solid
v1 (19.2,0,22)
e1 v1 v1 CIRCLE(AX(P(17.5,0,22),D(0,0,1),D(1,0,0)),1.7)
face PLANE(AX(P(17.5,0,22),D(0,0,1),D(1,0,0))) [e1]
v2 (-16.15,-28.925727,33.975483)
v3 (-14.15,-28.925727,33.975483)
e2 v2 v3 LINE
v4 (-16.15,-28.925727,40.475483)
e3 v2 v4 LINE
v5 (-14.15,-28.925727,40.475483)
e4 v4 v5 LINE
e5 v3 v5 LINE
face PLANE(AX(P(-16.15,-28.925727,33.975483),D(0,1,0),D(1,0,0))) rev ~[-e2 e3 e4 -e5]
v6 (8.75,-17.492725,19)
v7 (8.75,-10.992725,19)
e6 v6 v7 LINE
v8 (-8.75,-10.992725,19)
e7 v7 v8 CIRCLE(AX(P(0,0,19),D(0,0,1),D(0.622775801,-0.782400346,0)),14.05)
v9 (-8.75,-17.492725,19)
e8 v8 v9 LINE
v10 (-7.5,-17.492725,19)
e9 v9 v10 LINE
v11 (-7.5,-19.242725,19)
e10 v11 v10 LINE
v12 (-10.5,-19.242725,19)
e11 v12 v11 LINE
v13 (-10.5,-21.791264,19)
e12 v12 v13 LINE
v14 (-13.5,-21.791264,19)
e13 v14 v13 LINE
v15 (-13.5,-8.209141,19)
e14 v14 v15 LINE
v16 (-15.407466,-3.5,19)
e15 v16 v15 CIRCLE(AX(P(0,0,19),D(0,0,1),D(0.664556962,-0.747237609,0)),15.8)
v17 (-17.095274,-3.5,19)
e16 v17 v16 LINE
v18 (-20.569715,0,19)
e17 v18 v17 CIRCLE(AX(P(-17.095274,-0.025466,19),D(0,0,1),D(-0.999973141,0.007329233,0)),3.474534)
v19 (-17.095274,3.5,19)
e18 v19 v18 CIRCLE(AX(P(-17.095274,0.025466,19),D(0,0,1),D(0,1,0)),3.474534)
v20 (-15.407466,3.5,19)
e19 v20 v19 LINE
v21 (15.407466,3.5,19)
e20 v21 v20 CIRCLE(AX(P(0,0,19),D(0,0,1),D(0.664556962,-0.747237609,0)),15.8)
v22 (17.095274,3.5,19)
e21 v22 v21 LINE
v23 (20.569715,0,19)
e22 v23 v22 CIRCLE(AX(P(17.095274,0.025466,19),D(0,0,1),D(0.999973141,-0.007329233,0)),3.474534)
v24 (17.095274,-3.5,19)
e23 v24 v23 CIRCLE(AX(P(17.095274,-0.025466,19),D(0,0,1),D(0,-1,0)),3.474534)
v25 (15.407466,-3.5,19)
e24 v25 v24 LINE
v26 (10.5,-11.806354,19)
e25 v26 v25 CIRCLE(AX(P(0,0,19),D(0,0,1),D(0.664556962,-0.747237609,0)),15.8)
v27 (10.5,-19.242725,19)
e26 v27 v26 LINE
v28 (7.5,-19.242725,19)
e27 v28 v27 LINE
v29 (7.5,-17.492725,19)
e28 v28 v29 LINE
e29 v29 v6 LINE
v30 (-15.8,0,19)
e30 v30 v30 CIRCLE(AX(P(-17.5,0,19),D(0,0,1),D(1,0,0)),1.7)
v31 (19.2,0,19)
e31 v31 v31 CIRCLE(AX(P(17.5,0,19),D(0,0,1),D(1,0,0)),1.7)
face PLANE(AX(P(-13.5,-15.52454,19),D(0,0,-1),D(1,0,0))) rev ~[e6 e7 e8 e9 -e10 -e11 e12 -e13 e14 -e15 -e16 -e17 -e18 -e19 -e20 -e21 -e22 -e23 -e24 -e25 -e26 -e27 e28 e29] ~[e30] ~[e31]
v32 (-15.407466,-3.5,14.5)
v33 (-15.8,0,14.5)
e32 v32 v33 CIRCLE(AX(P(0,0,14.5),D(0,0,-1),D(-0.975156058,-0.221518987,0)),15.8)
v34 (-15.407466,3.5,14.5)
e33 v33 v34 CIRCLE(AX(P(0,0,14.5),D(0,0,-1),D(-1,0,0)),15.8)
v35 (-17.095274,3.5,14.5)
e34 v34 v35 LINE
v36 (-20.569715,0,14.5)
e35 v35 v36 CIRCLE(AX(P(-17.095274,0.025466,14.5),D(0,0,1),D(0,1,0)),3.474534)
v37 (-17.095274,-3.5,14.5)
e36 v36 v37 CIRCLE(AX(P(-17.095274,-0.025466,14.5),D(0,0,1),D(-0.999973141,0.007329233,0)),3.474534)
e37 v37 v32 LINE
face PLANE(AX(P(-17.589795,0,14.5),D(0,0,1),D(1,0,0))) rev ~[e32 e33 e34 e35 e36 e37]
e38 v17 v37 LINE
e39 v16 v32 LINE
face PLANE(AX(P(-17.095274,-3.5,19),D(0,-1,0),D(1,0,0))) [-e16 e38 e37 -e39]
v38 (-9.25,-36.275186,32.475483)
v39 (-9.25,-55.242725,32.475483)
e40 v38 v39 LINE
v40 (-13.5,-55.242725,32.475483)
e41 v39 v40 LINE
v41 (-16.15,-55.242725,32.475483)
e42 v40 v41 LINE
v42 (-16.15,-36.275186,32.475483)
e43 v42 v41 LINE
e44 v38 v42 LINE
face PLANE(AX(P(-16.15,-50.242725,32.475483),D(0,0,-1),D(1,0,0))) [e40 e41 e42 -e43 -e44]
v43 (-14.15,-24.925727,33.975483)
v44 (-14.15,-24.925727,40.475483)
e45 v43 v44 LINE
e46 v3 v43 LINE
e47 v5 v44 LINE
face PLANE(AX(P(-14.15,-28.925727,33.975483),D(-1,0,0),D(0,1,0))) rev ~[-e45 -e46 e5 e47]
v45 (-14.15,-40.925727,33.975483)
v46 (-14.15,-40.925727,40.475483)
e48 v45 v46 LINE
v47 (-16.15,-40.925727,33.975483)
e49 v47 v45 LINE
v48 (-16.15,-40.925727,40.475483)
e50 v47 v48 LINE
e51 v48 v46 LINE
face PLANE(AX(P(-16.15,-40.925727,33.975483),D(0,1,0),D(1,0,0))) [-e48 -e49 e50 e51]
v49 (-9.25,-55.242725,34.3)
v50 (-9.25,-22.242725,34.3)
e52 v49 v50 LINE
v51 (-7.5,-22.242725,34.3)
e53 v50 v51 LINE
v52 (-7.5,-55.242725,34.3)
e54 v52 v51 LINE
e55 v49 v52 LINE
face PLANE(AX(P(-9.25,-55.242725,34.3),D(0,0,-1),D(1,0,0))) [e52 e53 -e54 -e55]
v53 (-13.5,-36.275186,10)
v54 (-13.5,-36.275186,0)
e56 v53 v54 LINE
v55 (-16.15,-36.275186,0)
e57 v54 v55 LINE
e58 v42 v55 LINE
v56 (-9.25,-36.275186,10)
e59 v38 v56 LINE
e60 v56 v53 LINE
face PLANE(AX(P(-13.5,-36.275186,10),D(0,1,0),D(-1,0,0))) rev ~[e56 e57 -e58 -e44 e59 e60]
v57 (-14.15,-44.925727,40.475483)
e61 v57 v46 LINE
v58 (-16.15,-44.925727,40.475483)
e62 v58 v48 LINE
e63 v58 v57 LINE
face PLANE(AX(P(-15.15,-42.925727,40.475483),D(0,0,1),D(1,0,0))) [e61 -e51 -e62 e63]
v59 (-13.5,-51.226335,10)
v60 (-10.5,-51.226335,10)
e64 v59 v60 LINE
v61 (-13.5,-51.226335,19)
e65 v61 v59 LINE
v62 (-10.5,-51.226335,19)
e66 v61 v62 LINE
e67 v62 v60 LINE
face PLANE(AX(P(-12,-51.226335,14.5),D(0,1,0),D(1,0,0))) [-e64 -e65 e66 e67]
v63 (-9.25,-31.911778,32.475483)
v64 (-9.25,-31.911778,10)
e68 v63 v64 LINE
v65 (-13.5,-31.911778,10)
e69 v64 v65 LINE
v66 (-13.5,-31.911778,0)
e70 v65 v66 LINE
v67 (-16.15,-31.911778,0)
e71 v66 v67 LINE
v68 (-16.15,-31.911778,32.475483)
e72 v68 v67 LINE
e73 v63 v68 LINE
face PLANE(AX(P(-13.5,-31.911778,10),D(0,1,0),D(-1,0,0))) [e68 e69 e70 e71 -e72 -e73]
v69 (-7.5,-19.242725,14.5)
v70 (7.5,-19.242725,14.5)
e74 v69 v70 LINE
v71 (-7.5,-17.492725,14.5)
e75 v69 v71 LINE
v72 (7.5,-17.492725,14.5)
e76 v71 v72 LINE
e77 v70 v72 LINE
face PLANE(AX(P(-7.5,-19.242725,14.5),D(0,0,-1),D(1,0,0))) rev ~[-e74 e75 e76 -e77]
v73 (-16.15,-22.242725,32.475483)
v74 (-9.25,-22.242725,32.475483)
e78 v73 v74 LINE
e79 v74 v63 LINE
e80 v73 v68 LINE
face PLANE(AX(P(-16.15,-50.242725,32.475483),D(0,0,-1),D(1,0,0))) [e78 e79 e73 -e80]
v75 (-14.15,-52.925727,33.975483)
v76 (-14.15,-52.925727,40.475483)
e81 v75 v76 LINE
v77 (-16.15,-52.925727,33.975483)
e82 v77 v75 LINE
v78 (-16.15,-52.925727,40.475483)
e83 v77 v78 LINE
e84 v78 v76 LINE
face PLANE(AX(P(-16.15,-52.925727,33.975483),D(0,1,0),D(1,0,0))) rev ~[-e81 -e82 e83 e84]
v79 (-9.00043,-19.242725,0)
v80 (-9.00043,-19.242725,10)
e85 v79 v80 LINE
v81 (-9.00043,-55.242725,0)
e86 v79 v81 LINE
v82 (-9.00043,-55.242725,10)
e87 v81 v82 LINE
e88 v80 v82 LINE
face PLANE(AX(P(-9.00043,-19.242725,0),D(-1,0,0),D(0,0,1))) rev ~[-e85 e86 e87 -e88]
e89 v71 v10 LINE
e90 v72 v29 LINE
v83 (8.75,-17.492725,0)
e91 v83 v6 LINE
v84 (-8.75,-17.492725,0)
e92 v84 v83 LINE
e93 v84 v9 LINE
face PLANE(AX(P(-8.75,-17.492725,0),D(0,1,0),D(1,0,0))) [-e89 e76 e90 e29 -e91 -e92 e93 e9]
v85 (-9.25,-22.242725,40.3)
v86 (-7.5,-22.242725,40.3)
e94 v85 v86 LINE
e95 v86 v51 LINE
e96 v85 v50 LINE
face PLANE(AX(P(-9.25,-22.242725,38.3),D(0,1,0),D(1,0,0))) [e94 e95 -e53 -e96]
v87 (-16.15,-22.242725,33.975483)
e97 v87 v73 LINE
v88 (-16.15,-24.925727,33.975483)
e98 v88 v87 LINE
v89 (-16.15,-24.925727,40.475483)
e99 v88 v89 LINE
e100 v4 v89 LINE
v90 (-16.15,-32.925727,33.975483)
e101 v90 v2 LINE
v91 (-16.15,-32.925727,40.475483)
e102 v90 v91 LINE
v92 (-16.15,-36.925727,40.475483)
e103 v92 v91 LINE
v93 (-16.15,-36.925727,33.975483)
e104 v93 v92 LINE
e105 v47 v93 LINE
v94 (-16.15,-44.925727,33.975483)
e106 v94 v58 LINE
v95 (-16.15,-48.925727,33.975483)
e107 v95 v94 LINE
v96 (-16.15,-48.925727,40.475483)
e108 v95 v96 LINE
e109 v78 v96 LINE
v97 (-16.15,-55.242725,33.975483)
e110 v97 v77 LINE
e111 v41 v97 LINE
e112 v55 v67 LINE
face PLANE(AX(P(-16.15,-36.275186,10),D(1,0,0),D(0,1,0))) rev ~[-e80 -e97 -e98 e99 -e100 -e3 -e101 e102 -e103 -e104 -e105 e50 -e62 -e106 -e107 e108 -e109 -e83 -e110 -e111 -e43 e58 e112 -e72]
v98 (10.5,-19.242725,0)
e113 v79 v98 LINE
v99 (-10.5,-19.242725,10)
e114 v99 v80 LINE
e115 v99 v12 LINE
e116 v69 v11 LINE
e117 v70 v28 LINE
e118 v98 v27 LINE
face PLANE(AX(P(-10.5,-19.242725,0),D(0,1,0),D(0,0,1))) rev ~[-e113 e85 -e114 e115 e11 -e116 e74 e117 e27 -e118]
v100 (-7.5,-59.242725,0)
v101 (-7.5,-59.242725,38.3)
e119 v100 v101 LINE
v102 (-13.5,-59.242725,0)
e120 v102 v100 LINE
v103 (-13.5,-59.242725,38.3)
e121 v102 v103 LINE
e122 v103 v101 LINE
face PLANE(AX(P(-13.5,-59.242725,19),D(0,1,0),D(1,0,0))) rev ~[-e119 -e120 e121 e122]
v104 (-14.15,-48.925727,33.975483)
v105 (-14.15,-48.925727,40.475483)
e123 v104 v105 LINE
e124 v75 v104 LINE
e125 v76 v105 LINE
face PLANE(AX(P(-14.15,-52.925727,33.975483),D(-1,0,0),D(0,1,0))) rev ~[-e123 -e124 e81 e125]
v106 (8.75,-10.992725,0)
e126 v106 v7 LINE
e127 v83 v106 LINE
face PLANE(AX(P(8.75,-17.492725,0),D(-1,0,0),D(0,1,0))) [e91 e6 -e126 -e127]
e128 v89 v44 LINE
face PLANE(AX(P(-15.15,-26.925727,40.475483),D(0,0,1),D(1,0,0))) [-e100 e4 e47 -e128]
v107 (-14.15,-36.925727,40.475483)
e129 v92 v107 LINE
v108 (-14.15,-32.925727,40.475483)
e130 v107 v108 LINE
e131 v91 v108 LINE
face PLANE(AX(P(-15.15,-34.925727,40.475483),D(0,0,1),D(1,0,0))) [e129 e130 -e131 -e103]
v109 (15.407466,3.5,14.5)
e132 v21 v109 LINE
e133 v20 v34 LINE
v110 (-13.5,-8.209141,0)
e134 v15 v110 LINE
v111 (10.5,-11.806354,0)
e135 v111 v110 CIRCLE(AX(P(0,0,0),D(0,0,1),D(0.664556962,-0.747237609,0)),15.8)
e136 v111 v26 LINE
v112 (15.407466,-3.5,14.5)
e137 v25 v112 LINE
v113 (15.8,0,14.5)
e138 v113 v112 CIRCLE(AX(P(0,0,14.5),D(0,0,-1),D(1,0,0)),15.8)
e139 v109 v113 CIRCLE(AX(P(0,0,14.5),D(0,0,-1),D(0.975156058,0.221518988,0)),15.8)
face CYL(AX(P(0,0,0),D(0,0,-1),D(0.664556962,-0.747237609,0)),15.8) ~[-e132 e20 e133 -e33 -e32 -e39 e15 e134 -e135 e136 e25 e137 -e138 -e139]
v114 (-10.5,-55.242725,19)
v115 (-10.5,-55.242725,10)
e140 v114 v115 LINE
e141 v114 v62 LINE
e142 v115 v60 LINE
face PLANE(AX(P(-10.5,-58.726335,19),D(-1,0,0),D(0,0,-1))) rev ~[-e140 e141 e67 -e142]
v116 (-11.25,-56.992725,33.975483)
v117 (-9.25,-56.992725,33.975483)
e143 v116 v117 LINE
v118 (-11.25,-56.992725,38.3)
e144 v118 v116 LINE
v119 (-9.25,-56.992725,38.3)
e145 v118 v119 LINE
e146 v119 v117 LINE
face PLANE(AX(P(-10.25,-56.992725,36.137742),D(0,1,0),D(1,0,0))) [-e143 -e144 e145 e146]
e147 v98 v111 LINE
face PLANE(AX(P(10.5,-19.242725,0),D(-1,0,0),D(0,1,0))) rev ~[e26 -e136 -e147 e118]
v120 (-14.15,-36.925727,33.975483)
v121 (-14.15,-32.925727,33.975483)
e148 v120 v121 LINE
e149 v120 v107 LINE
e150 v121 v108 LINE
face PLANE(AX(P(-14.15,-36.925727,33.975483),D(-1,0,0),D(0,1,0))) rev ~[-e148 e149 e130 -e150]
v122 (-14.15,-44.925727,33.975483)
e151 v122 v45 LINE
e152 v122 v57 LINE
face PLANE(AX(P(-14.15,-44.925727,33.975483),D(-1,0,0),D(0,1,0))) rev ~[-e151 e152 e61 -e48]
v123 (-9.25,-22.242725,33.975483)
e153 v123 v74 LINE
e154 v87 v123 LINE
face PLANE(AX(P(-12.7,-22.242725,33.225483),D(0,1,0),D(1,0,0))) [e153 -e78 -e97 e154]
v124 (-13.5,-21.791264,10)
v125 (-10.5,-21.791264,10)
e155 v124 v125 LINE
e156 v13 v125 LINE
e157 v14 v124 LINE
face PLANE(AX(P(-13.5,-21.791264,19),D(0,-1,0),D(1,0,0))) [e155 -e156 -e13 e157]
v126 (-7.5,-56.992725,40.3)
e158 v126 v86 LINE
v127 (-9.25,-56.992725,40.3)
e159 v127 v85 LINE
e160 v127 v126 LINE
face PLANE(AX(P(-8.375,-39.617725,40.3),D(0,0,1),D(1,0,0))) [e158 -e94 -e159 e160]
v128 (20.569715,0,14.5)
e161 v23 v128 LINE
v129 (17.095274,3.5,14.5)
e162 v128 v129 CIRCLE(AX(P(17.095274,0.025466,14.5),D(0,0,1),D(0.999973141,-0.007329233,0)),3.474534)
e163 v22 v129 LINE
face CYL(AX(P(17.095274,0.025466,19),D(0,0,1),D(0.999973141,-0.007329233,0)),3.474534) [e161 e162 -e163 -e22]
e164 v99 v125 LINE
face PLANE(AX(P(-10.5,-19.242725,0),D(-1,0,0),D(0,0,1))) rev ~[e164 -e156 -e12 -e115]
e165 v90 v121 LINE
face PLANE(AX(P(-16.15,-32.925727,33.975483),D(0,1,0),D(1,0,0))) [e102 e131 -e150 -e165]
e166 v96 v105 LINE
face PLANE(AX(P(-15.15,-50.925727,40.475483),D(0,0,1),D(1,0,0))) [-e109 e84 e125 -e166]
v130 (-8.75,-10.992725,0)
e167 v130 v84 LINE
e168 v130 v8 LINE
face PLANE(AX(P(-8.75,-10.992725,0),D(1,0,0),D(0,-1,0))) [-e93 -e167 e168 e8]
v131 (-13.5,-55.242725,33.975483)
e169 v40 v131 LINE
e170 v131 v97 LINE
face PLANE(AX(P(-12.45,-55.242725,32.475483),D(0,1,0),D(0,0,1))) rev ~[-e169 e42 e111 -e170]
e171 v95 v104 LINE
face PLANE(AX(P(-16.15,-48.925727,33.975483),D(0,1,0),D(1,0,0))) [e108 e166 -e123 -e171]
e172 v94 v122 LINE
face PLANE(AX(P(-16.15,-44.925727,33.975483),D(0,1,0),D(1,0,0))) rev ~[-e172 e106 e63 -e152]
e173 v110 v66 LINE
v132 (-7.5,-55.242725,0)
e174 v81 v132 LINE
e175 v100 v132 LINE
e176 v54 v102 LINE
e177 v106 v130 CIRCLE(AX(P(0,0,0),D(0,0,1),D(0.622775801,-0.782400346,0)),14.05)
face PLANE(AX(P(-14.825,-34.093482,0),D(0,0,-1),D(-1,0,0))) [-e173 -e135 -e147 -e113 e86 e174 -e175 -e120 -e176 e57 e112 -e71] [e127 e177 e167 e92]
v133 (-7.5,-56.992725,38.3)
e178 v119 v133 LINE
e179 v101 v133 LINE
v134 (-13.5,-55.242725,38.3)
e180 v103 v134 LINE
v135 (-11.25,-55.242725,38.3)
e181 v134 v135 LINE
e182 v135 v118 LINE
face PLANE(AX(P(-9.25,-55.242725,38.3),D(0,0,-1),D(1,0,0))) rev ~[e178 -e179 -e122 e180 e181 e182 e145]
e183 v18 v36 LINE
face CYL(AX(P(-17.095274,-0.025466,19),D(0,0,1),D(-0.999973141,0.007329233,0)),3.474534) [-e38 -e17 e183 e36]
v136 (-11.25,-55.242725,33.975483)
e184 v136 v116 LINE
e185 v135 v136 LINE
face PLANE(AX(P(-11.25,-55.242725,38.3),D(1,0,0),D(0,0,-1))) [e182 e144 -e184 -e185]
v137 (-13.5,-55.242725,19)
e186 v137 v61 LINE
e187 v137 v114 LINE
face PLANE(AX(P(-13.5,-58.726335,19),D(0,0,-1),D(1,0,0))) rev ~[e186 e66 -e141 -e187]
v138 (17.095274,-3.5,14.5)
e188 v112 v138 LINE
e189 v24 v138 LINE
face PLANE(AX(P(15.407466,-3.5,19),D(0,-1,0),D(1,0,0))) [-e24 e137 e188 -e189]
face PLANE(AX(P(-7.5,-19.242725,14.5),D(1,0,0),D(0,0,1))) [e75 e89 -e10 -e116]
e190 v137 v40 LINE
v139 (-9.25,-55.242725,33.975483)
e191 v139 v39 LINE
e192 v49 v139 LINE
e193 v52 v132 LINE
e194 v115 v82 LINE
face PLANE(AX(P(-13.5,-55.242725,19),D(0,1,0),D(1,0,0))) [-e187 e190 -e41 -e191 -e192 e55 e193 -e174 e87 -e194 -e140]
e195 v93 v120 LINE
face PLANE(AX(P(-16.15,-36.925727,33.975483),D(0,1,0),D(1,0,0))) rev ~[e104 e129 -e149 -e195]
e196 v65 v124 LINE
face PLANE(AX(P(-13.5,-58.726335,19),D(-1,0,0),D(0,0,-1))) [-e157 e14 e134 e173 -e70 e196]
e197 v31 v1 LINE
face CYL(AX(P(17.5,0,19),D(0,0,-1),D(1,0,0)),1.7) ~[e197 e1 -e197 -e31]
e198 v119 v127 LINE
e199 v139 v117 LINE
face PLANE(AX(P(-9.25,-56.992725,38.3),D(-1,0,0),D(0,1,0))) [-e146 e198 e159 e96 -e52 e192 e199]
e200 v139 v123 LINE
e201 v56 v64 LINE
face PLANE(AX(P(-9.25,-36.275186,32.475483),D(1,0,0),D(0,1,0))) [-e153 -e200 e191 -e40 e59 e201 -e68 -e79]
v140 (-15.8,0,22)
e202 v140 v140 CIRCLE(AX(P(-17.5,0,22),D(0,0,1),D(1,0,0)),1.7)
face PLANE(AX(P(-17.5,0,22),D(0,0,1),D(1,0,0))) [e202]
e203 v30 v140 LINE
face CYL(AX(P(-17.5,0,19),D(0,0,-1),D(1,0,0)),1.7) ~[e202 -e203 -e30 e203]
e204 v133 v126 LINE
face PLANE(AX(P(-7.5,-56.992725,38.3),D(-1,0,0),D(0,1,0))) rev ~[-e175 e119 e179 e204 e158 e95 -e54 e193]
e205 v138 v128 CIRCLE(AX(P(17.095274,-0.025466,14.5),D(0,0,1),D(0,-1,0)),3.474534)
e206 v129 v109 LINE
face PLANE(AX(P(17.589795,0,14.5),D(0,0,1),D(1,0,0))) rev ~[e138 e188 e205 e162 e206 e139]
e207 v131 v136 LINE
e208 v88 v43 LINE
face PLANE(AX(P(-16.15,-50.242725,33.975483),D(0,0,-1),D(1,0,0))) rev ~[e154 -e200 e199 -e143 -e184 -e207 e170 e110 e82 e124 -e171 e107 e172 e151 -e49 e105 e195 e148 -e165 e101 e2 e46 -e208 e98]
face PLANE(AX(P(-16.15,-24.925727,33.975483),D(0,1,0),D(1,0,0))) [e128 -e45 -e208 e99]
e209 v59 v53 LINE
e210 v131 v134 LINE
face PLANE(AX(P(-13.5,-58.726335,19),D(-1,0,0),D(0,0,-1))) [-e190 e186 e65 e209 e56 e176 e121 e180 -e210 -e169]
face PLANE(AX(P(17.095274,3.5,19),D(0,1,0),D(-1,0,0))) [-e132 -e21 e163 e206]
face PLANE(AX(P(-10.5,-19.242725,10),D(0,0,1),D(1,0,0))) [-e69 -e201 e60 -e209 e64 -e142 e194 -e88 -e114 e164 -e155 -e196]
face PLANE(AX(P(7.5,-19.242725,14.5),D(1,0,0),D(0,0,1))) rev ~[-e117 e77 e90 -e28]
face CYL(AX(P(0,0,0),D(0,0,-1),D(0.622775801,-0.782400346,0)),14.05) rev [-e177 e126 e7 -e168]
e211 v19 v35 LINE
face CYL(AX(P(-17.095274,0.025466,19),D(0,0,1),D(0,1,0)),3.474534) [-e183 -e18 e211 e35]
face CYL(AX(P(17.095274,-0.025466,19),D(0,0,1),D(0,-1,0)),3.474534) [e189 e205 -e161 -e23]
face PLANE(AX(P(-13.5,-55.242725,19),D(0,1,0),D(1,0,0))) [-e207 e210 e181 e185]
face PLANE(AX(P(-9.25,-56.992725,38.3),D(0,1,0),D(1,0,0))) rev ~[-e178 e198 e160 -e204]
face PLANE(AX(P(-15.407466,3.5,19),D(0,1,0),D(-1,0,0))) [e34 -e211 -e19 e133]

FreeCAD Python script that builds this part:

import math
import FreeCAD as App
import Part
import Sketcher

doc = App.newDocument("Part")
body = doc.addObject("PartDesign::Body", "Body")

# Sketch on XY plane
sketch1 = body.newObject("Sketcher::SketchObject", "Sketch")
sketch1.AttachmentSupport = (doc.getObject("XY_Plane"), [""])
sketch1.MapMode = "FlatFace"
sketch1.addGeometry([
    Part.LineSegment(App.Vector(-10, -12, 0), App.Vector(-10, -19, 0)),  # 0
    Part.LineSegment(App.Vector(-10, -19, 0), App.Vector(10, -19, 0)),  # 1
    Part.LineSegment(App.Vector(10, -19, 0), App.Vector(10, -12, 0)),  # 2
    Part.ArcOfCircle(Part.Circle(App.Vector(0, 0, 0), App.Vector(0, 0, 1), 16), math.radians(-48), math.radians(228)),  # 3
    Part.LineSegment(App.Vector(-9, -17, 0), App.Vector(-9, -11, 0)),  # 4
    Part.ArcOfCircle(Part.Circle(App.Vector(0, 0, 0), App.Vector(0, 0, 1), 14), math.radians(-51), math.radians(231)),  # 5
    Part.LineSegment(App.Vector(9, -11, 0), App.Vector(9, -17, 0)),  # 6
    Part.LineSegment(App.Vector(9, -17, 0), App.Vector(-9, -17, 0)),  # 7
], False)
sketch1.addConstraint([
    Sketcher.Constraint("Coincident", 0, 2, 1, 1),
    Sketcher.Constraint("Coincident", 1, 2, 2, 1),
    Sketcher.Constraint("Coincident", 2, 2, 3, 1),
    Sketcher.Constraint("Coincident", 3, 2, 0, 1),
    Sketcher.Constraint("Coincident", 4, 2, 5, 2),
    Sketcher.Constraint("Coincident", 5, 1, 6, 1),
    Sketcher.Constraint("Coincident", 6, 2, 7, 1),
    Sketcher.Constraint("Coincident", 7, 2, 4, 1),
    Sketcher.Constraint("Vertical", 0),
    Sketcher.Constraint("Horizontal", 1),
    Sketcher.Constraint("Vertical", 2),
    Sketcher.Constraint("Vertical", 4),
    Sketcher.Constraint("Vertical", 6),
    Sketcher.Constraint("Horizontal", 7),
    Sketcher.Constraint("Coincident", 3, 3, -1, 1),
    Sketcher.Constraint("Coincident", 5, 3, -1, 1),
    Sketcher.Constraint("Horizontal", 2, 2, 3, 2),
    Sketcher.Constraint("Horizontal", 4, 2, 5, 1),
    Sketcher.Constraint("Radius", 3, 15.8),
    Sketcher.Constraint("DistanceX", 1, 1, 1, 2, 21.0),
    Sketcher.Constraint("Radius", 5, 14.05),
    Sketcher.Constraint("DistanceX", 7, 2, 7, 1, 17.5),
    Sketcher.Constraint("DistanceY", 4, 1, 4, 2, 6.5),
    Sketcher.Constraint("DistanceY", 0, 2, 4, 2, 8.25),
])
pad1 = body.newObject("PartDesign::Pad", "Pad")
pad1.Profile = sketch1
pad1.Length = 19
body2 = doc.addObject("PartDesign::Body", "Body001")
body2.AllowCompound = True

# Sketch on XY plane
sketch2 = body2.newObject("Sketcher::SketchObject", "Sketch001")
sketch2.AttachmentSupport = (doc.getObject("XY_Plane001"), [""])
sketch2.MapMode = "FlatFace"
sketch2.AttachmentOffset = App.Placement(App.Vector(0, 0, 19), App.Rotation())
sketch2.addGeometry([
    Part.LineSegment(App.Vector(-17.095274, -3.5, 0), App.Vector(-15.407466, -3.5, 0)),  # 0
    Part.ArcOfCircle(Part.Circle(App.Vector(0, 0, 0), App.Vector(0, 0, 1), 15.8), math.radians(-180), math.radians(-167.201734)),  # 1
    Part.ArcOfCircle(Part.Circle(App.Vector(0, 0, 0), App.Vector(0, 0, 1), 15.8), math.radians(167.201734), math.radians(180)),  # 2
    Part.LineSegment(App.Vector(-15.407466, 3.5, 0), App.Vector(-17.095274, 3.5, 0)),  # 3
    Part.ArcOfCircle(Part.Circle(App.Vector(-17.095274, 0.025466, 0), App.Vector(0, 0, 1), 3.474534), math.radians(90), math.radians(180.419938)),  # 4
    Part.ArcOfCircle(Part.Circle(App.Vector(-17.095274, -0.025466, 0), App.Vector(0, 0, 1), 3.474534), math.radians(179.580062), math.radians(270)),  # 5
    Part.ArcOfCircle(Part.Circle(App.Vector(17.095274, -0.025466, 0), App.Vector(0, 0, 1), 3.474534), math.radians(-90), math.radians(0.419938)),  # 6
    Part.ArcOfCircle(Part.Circle(App.Vector(17.095274, 0.025466, 0), App.Vector(0, 0, 1), 3.474534), math.radians(-0.419938), math.radians(90)),  # 7
    Part.LineSegment(App.Vector(17.095274, 3.5, 0), App.Vector(15.407466, 3.5, 0)),  # 8
    Part.ArcOfCircle(Part.Circle(App.Vector(0, 0, 0), App.Vector(0, 0, 1), 15.8), math.radians(0), math.radians(12.798266)),  # 9
    Part.ArcOfCircle(Part.Circle(App.Vector(0, 0, 0), App.Vector(0, 0, 1), 15.8), math.radians(-12.798266), math.radians(0)),  # 10
    Part.LineSegment(App.Vector(15.407466, -3.5, 0), App.Vector(17.095274, -3.5, 0)),  # 11
], False)
sketch2.addConstraint([
    Sketcher.Constraint("Coincident", 0, 2, 1, 2),
    Sketcher.Constraint("Tangent", 1, 1, 2, 2),
    Sketcher.Constraint("Coincident", 2, 1, 3, 1),
    Sketcher.Constraint("Tangent", 3, 2, 4, 1),
    Sketcher.Constraint("Coincident", 4, 2, 5, 1),
    Sketcher.Constraint("Tangent", 5, 2, 0, 1),
    Sketcher.Constraint("Coincident", 6, 2, 7, 1),
    Sketcher.Constraint("Tangent", 7, 2, 8, 1),
    Sketcher.Constraint("Coincident", 8, 2, 9, 2),
    Sketcher.Constraint("Tangent", 9, 1, 10, 2),
    Sketcher.Constraint("Coincident", 10, 1, 11, 1),
    Sketcher.Constraint("Tangent", 11, 2, 6, 1),
    Sketcher.Constraint("Horizontal", 0),
    Sketcher.Constraint("Horizontal", 3),
    Sketcher.Constraint("Horizontal", 8),
    Sketcher.Constraint("Horizontal", 11),
    Sketcher.Constraint("Coincident", 1, 3, -1, 1),
    Sketcher.Constraint("Coincident", 9, 3, -1, 1),
    Sketcher.Constraint("Equal", 1, 2),
    Sketcher.Constraint("Equal", 4, 5),
    Sketcher.Constraint("Equal", 5, 6),
    Sketcher.Constraint("Equal", 6, 7),
    Sketcher.Constraint("Equal", 2, 9),
    Sketcher.Constraint("Equal", 9, 10),
    Sketcher.Constraint("Symmetric", 4, 3, 6, 3, -1, 1),
    Sketcher.Constraint("Symmetric", 5, 3, 7, 3, -1, 1),
    Sketcher.Constraint("Symmetric", 5, 3, 6, 3, -2),
    Sketcher.Constraint("PointOnObject", 1, 1, -1),
    Sketcher.Constraint("PointOnObject", 9, 1, -1),
    Sketcher.Constraint("Radius", 1, 15.8),
    Sketcher.Constraint("DistanceY", 0, 2, 2, 1, 7.0),
    Sketcher.Constraint("Radius", 4, 3.474534),
    Sketcher.Constraint("DistanceX", 0, 1, 0, 2, 1.687809),
])
pad2 = body2.newObject("PartDesign::Pad", "Pad001")
pad2.Profile = sketch2
pad2.Length = 4.5
pad2.Reversed = True
doc.recompute()

boolean = body.newObject("PartDesign::Boolean", "Boolean")
boolean.Type = "Fuse"
boolean.addObjects([body2])

# Sketch on XY plane
sketch3 = body.newObject("Sketcher::SketchObject", "Sketch002")
sketch3.AttachmentSupport = (doc.getObject("XY_Plane"), [""])
sketch3.MapMode = "FlatFace"
sketch3.AttachmentOffset = App.Placement(App.Vector(0, 0, 19), App.Rotation())
sketch3.addGeometry([
    Part.Circle(App.Vector(-17.5, 0, 0), App.Vector(0, 0, 1), 1.7),
    Part.Circle(App.Vector(17.5, 0, 0), App.Vector(0, 0, 1), 1.7),
], False)
sketch3.addConstraint([
    Sketcher.Constraint("Equal", 0, 1),
    Sketcher.Constraint("Symmetric", 0, 3, 1, 3, -1, 1),
    Sketcher.Constraint("PointOnObject", 0, 3, -1),
    Sketcher.Constraint("Diameter", 0, 3.4),
    Sketcher.Constraint("DistanceX", 0, 3, 1, 3, 35.0),
])
pad3 = body.newObject("PartDesign::Pad", "Pad002")
pad3.Profile = sketch3
pad3.Length = 3

# Sketch on XZ plane
sketch4 = body.newObject("Sketcher::SketchObject", "Sketch003")
sketch4.AttachmentSupport = (doc.getObject("XZ_Plane"), [""])
sketch4.MapMode = "FlatFace"
sketch4.AttachmentOffset = App.Placement(App.Vector(0, 0, 19.242725), App.Rotation())
sketch4.addGeometry([
    Part.LineSegment(App.Vector(-7.5, 19, 0), App.Vector(-7.5, 14.5, 0)),
    Part.LineSegment(App.Vector(-7.5, 14.5, 0), App.Vector(7.5, 14.5, 0)),
    Part.LineSegment(App.Vector(7.5, 14.5, 0), App.Vector(7.5, 19, 0)),
    Part.LineSegment(App.Vector(7.5, 19, 0), App.Vector(-7.5, 19, 0)),
], False)
sketch4.addConstraint([
    Sketcher.Constraint("Coincident", 0, 2, 1, 1),
    Sketcher.Constraint("Coincident", 1, 2, 2, 1),
    Sketcher.Constraint("Coincident", 2, 2, 3, 1),
    Sketcher.Constraint("Coincident", 3, 2, 0, 1),
    Sketcher.Constraint("Vertical", 0),
    Sketcher.Constraint("Horizontal", 1),
    Sketcher.Constraint("Vertical", 2),
    Sketcher.Constraint("Horizontal", 3),
    Sketcher.Constraint("DistanceX", 1, 1, 1, 2, 15.0),
    Sketcher.Constraint("DistanceY", 0, 2, 0, 1, 4.5),
    Sketcher.Constraint("DistanceY", -1, 1, 2, 2, 19.0),
    Sketcher.Constraint("DistanceX", 0, 2, -1, 1, 7.5),
])
pocket1 = body.newObject("PartDesign::Pocket", "Pocket")
pocket1.Profile = sketch4
pocket1.Length = 1.75

# Sketch on YZ plane
sketch5 = body.newObject("Sketcher::SketchObject", "Sketch004")
sketch5.AttachmentSupport = (doc.getObject("YZ_Plane"), [""])
sketch5.MapMode = "FlatFace"
sketch5.AttachmentOffset = App.Placement(App.Vector(0, 0, -10.5), App.Rotation())
sketch5.addGeometry([
    Part.LineSegment(App.Vector(-15.5, 0, 0), App.Vector(-19.2, 0, 0)),
    Part.LineSegment(App.Vector(-19.2, 0, 0), App.Vector(-19.2, 19, 0)),
    Part.LineSegment(App.Vector(-19.2, 19, 0), App.Vector(-15.5, 19, 0)),
    Part.LineSegment(App.Vector(-15.5, 19, 0), App.Vector(-15.5, 0, 0)),
], False)
sketch5.addConstraint([
    Sketcher.Constraint("Coincident", 0, 2, 1, 1),
    Sketcher.Constraint("Coincident", 1, 2, 2, 1),
    Sketcher.Constraint("Coincident", 2, 2, 3, 1),
    Sketcher.Constraint("Coincident", 3, 2, 0, 1),
    Sketcher.Constraint("Horizontal", 0),
    Sketcher.Constraint("Vertical", 1),
    Sketcher.Constraint("Horizontal", 2),
    Sketcher.Constraint("Vertical", 3),
    Sketcher.Constraint("PointOnObject", 0, 2, -1),
    Sketcher.Constraint("DistanceY", 1, 1, 1, 2, 19.0),
    Sketcher.Constraint("DistanceX", 0, 2, 0, 1, 3.718185),
    Sketcher.Constraint("DistanceX", 2, 2, -1, 1, 15.52454),
])
pad4 = body.newObject("PartDesign::Pad", "Pad003")
pad4.Profile = sketch5
pad4.Length = 3
pad4.Reversed = True

# Sketch on XZ plane
sketch6 = body.newObject("Sketcher::SketchObject", "Sketch005")
sketch6.AttachmentSupport = (doc.getObject("XZ_Plane"), [""])
sketch6.MapMode = "FlatFace"
sketch6.AttachmentOffset = App.Placement(App.Vector(0, 0, 19.242725), App.Rotation())
sketch6.addGeometry([
    Part.LineSegment(App.Vector(-13.5, 19, 0), App.Vector(-13.5, 0, 0)),
    Part.LineSegment(App.Vector(-13.5, 0, 0), App.Vector(-10.5, 0, 0)),
    Part.LineSegment(App.Vector(-10.5, 0, 0), App.Vector(-10.5, 19, 0)),
    Part.LineSegment(App.Vector(-10.5, 19, 0), App.Vector(-13.5, 19, 0)),
], False)
sketch6.addConstraint([
    Sketcher.Constraint("Coincident", 0, 2, 1, 1),
    Sketcher.Constraint("Coincident", 1, 2, 2, 1),
    Sketcher.Constraint("Coincident", 2, 2, 3, 1),
    Sketcher.Constraint("Coincident", 3, 2, 0, 1),
    Sketcher.Constraint("Vertical", 0),
    Sketcher.Constraint("Horizontal", 1),
    Sketcher.Constraint("Vertical", 2),
    Sketcher.Constraint("Horizontal", 3),
    Sketcher.Constraint("PointOnObject", 0, 2, -1),
    Sketcher.Constraint("DistanceX", 1, 1, 1, 2, 3.0),
    Sketcher.Constraint("DistanceY", 0, 2, 0, 1, 19.0),
    Sketcher.Constraint("DistanceX", 0, 2, -1, 1, 13.5),
])
pad5 = body.newObject("PartDesign::Pad", "Pad004")
pad5.Profile = sketch6
pad5.Length = 40

# Sketch on YZ plane
sketch7 = body.newObject("Sketcher::SketchObject", "Sketch006")
sketch7.AttachmentSupport = (doc.getObject("YZ_Plane"), [""])
sketch7.MapMode = "FlatFace"
sketch7.AttachmentOffset = App.Placement(App.Vector(0, 0, -10.5), App.Rotation())
sketch7.addGeometry([
    Part.LineSegment(App.Vector(-55.2, 19, 0), App.Vector(-59.2, 19, 0)),
    Part.LineSegment(App.Vector(-59.2, 19, 0), App.Vector(-59.2, 0, 0)),
    Part.LineSegment(App.Vector(-59.2, 0, 0), App.Vector(-55.2, 0, 0)),
    Part.LineSegment(App.Vector(-55.2, 0, 0), App.Vector(-55.2, 19, 0)),
], False)
sketch7.addConstraint([
    Sketcher.Constraint("Coincident", 0, 2, 1, 1),
    Sketcher.Constraint("Coincident", 1, 2, 2, 1),
    Sketcher.Constraint("Coincident", 2, 2, 3, 1),
    Sketcher.Constraint("Coincident", 3, 2, 0, 1),
    Sketcher.Constraint("Horizontal", 0),
    Sketcher.Constraint("Vertical", 1),
    Sketcher.Constraint("Horizontal", 2),
    Sketcher.Constraint("Vertical", 3),
    Sketcher.Constraint("PointOnObject", 1, 2, -1),
    Sketcher.Constraint("DistanceX", 0, 2, 0, 1, 4.0),
    Sketcher.Constraint("DistanceY", 1, 2, 1, 1, 19.0),
    Sketcher.Constraint("DistanceX", 0, 2, -1, 1, 59.242725),
])
pad6 = body.newObject("PartDesign::Pad", "Pad005")
pad6.Profile = sketch7
pad6.Length = 3

# Sketch on XY plane
sketch8 = body.newObject("Sketcher::SketchObject", "Sketch007")
sketch8.AttachmentSupport = (doc.getObject("XY_Plane"), [""])
sketch8.MapMode = "FlatFace"
sketch8.AttachmentOffset = App.Placement(App.Vector(0, 0, 19), App.Rotation())
sketch8.addGeometry([
    Part.LineSegment(App.Vector(-13.5, -55.2, 0), App.Vector(-13.5, -59.2, 0)),
    Part.LineSegment(App.Vector(-13.5, -59.2, 0), App.Vector(-7.5, -59.2, 0)),
    Part.LineSegment(App.Vector(-7.5, -59.2, 0), App.Vector(-7.5, -55.2, 0)),
    Part.LineSegment(App.Vector(-7.5, -55.2, 0), App.Vector(-13.5, -55.2, 0)),
], False)
sketch8.addConstraint([
    Sketcher.Constraint("Coincident", 0, 2, 1, 1),
    Sketcher.Constraint("Coincident", 1, 2, 2, 1),
    Sketcher.Constraint("Coincident", 2, 2, 3, 1),
    Sketcher.Constraint("Coincident", 3, 2, 0, 1),
    Sketcher.Constraint("Vertical", 0),
    Sketcher.Constraint("Horizontal", 1),
    Sketcher.Constraint("Vertical", 2),
    Sketcher.Constraint("Horizontal", 3),
    Sketcher.Constraint("DistanceX", 1, 1, 1, 2, 6.0),
    Sketcher.Constraint("DistanceY", 0, 2, 0, 1, 4.0),
    Sketcher.Constraint("DistanceX", 0, 2, -1, 1, 13.5),
    Sketcher.Constraint("DistanceY", 0, 2, -1, 1, 59.242725),
])
pad7 = body.newObject("PartDesign::Pad", "Pad006")
pad7.Profile = sketch8
pad7.Length = 19.3

# Sketch on XZ plane
sketch9 = body.newObject("Sketcher::SketchObject", "Sketch008")
sketch9.AttachmentSupport = (doc.getObject("XZ_Plane"), [""])
sketch9.MapMode = "FlatFace"
sketch9.AttachmentOffset = App.Placement(App.Vector(0, 0, 55.242725), App.Rotation())
sketch9.addGeometry([
    Part.LineSegment(App.Vector(-9.2, 34.3, 0), App.Vector(-9.2, 38.3, 0)),
    Part.LineSegment(App.Vector(-9.2, 38.3, 0), App.Vector(-7.5, 38.3, 0)),
    Part.LineSegment(App.Vector(-7.5, 38.3, 0), App.Vector(-7.5, 34.3, 0)),
    Part.LineSegment(App.Vector(-7.5, 34.3, 0), App.Vector(-9.2, 34.3, 0)),
], False)
sketch9.addConstraint([
    Sketcher.Constraint("Coincident", 0, 2, 1, 1),
    Sketcher.Constraint("Coincident", 1, 2, 2, 1),
    Sketcher.Constraint("Coincident", 2, 2, 3, 1),
    Sketcher.Constraint("Coincident", 3, 2, 0, 1),
    Sketcher.Constraint("Vertical", 0),
    Sketcher.Constraint("Horizontal", 1),
    Sketcher.Constraint("Vertical", 2),
    Sketcher.Constraint("Horizontal", 3),
    Sketcher.Constraint("DistanceY", 0, 1, 0, 2, 4.0),
    Sketcher.Constraint("DistanceX", 1, 1, 1, 2, 1.75),
    Sketcher.Constraint("DistanceY", -1, 1, 0, 2, 38.3),
    Sketcher.Constraint("DistanceX", 1, 2, -1, 1, 7.5),
])
pad8 = body.newObject("PartDesign::Pad", "Pad007")
pad8.Profile = sketch9
pad8.Length = 33
pad8.Reversed = True

# Sketch on XZ plane
sketch10 = body.newObject("Sketcher::SketchObject", "Sketch009")
sketch10.AttachmentSupport = (doc.getObject("XZ_Plane"), [""])
sketch10.MapMode = "FlatFace"
sketch10.AttachmentOffset = App.Placement(App.Vector(0, 0, 55.242725), App.Rotation())
sketch10.addGeometry([
    Part.LineSegment(App.Vector(-11.2, 34, 0), App.Vector(-11.2, 38.3, 0)),
    Part.LineSegment(App.Vector(-11.2, 38.3, 0), App.Vector(-9.2, 38.3, 0)),
    Part.LineSegment(App.Vector(-9.2, 38.3, 0), App.Vector(-9.2, 34, 0)),
    Part.LineSegment(App.Vector(-9.2, 34, 0), App.Vector(-11.2, 34, 0)),
], False)
sketch10.addConstraint([
    Sketcher.Constraint("Coincident", 0, 2, 1, 1),
    Sketcher.Constraint("Coincident", 1, 2, 2, 1),
    Sketcher.Constraint("Coincident", 2, 2, 3, 1),
    Sketcher.Constraint("Coincident", 3, 2, 0, 1),
    Sketcher.Constraint("Vertical", 0),
    Sketcher.Constraint("Horizontal", 1),
    Sketcher.Constraint("Vertical", 2),
    Sketcher.Constraint("Horizontal", 3),
    Sketcher.Constraint("DistanceX", 1, 1, 1, 2, 2.0),
    Sketcher.Constraint("DistanceY", -1, 1, 0, 2, 38.3),
    Sketcher.Constraint("DistanceX", 0, 2, -1, 1, 11.25),
    Sketcher.Constraint("DistanceY", 0, 1, 0, 2, 4.324517),
])
pocket2 = body.newObject("PartDesign::Pocket", "Pocket001")
pocket2.Profile = sketch10
pocket2.Length = 1.75
pocket2.Reversed = True

# Sketch on XZ plane
sketch11 = body.newObject("Sketcher::SketchObject", "Sketch010")
sketch11.AttachmentSupport = (doc.getObject("XZ_Plane"), [""])
sketch11.MapMode = "FlatFace"
sketch11.AttachmentOffset = App.Placement(App.Vector(0, 0, 55.242725), App.Rotation())
sketch11.addGeometry([
    Part.LineSegment(App.Vector(-12.4, 32.5, 0), App.Vector(-12.4, 34, 0)),
    Part.LineSegment(App.Vector(-12.4, 34, 0), App.Vector(-9.2, 34, 0)),
    Part.LineSegment(App.Vector(-9.2, 34, 0), App.Vector(-9.2, 32.5, 0)),
    Part.LineSegment(App.Vector(-9.2, 32.5, 0), App.Vector(-12.4, 32.5, 0)),
], False)
sketch11.addConstraint([
    Sketcher.Constraint("Coincident", 0, 2, 1, 1),
    Sketcher.Constraint("Coincident", 1, 2, 2, 1),
    Sketcher.Constraint("Coincident", 2, 2, 3, 1),
    Sketcher.Constraint("Coincident", 3, 2, 0, 1),
    Sketcher.Constraint("Vertical", 0),
    Sketcher.Constraint("Horizontal", 1),
    Sketcher.Constraint("Vertical", 2),
    Sketcher.Constraint("Horizontal", 3),
    Sketcher.Constraint("DistanceX", 1, 1, 1, 2, 3.2),
    Sketcher.Constraint("DistanceY", 0, 1, 0, 2, 1.5),
    Sketcher.Constraint("DistanceX", 0, 2, -1, 1, 12.45),
    Sketcher.Constraint("DistanceY", -1, 1, 0, 2, 33.975483),
])
pad9 = body.newObject("PartDesign::Pad", "Pad008")
pad9.Profile = sketch11
pad9.Length = 5
pad9.Reversed = True

# Sketch on YZ plane
sketch12 = body.newObject("Sketcher::SketchObject", "Sketch011")
sketch12.AttachmentSupport = (doc.getObject("YZ_Plane"), [""])
sketch12.MapMode = "FlatFace"
sketch12.AttachmentOffset = App.Placement(App.Vector(0, 0, -12.45), App.Rotation())
sketch12.addGeometry([
    Part.LineSegment(App.Vector(-50.2, 32.5, 0), App.Vector(-55.2, 32.5, 0)),
    Part.LineSegment(App.Vector(-55.2, 32.5, 0), App.Vector(-55.2, 34, 0)),
    Part.LineSegment(App.Vector(-55.2, 34, 0), App.Vector(-50.2, 34, 0)),
    Part.LineSegment(App.Vector(-50.2, 34, 0), App.Vector(-50.2, 32.5, 0)),
], False)
sketch12.addConstraint([
    Sketcher.Constraint("Coincident", 0, 2, 1, 1),
    Sketcher.Constraint("Coincident", 1, 2, 2, 1),
    Sketcher.Constraint("Coincident", 2, 2, 3, 1),
    Sketcher.Constraint("Coincident", 3, 2, 0, 1),
    Sketcher.Constraint("Horizontal", 0),
    Sketcher.Constraint("Vertical", 1),
    Sketcher.Constraint("Horizontal", 2),
    Sketcher.Constraint("Vertical", 3),
    Sketcher.Constraint("DistanceX", 0, 2, 0, 1, 5.0),
    Sketcher.Constraint("DistanceY", 1, 1, 1, 2, 1.5),
    Sketcher.Constraint("DistanceX", 0, 2, -1, 1, 55.242725),
    Sketcher.Constraint("DistanceY", -1, 1, 0, 2, 32.475483),
])
pad10 = body.newObject("PartDesign::Pad", "Pad009")
pad10.Profile = sketch12
pad10.Length = 3.7
pad10.Reversed = True

# Sketch on XZ plane
sketch13 = body.newObject("Sketcher::SketchObject", "Sketch012")
sketch13.AttachmentSupport = (doc.getObject("XZ_Plane"), [""])
sketch13.MapMode = "FlatFace"
sketch13.AttachmentOffset = App.Placement(App.Vector(0, 0, 15.52454), App.Rotation())
sketch13.addGeometry([
    Part.LineSegment(App.Vector(-13.5, 0, 0), App.Vector(-13.5, 19, 0)),
    Part.LineSegment(App.Vector(-13.5, 19, 0), App.Vector(-10.5, 19, 0)),
    Part.LineSegment(App.Vector(-10.5, 19, 0), App.Vector(-10.5, 0, 0)),
    Part.LineSegment(App.Vector(-10.5, 0, 0), App.Vector(-13.5, 0, 0)),
], False)
sketch13.addConstraint([
    Sketcher.Constraint("Coincident", 0, 2, 1, 1),
    Sketcher.Constraint("Coincident", 1, 2, 2, 1),
    Sketcher.Constraint("Coincident", 2, 2, 3, 1),
    Sketcher.Constraint("Coincident", 3, 2, 0, 1),
    Sketcher.Constraint("Vertical", 0),
    Sketcher.Constraint("Horizontal", 1),
    Sketcher.Constraint("Vertical", 2),
    Sketcher.Constraint("Horizontal", 3),
    Sketcher.Constraint("PointOnObject", 2, 2, -1),
    Sketcher.Constraint("DistanceX", 1, 1, 1, 2, 3.0),
    Sketcher.Constraint("DistanceY", 0, 1, 0, 2, 19.0),
    Sketcher.Constraint("DistanceX", 0, 2, -1, 1, 13.5),
])
pad11 = body.newObject("PartDesign::Pad", "Pad010")
pad11.Profile = sketch13
pad11.Type = "UpToFirst"
pad11.Reversed = True

# Sketch on XZ plane
sketch14 = body.newObject("Sketcher::SketchObject", "Sketch013")
sketch14.AttachmentSupport = (doc.getObject("XZ_Plane"), [""])
sketch14.MapMode = "FlatFace"
sketch14.AttachmentOffset = App.Placement(App.Vector(0, 0, 19.242725), App.Rotation())
sketch14.addGeometry([
    Part.LineSegment(App.Vector(-10.5, 10, 0), App.Vector(-10.5, 0, 0)),
    Part.LineSegment(App.Vector(-10.5, 0, 0), App.Vector(-9, 0, 0)),
    Part.LineSegment(App.Vector(-9, 0, 0), App.Vector(-9, 10, 0)),
    Part.LineSegment(App.Vector(-9, 10, 0), App.Vector(-10.5, 10, 0)),
], False)
sketch14.addConstraint([
    Sketcher.Constraint("Coincident", 0, 2, 1, 1),
    Sketcher.Constraint("Coincident", 1, 2, 2, 1),
    Sketcher.Constraint("Coincident", 2, 2, 3, 1),
    Sketcher.Constraint("Coincident", 3, 2, 0, 1),
    Sketcher.Constraint("Vertical", 0),
    Sketcher.Constraint("Horizontal", 1),
    Sketcher.Constraint("Vertical", 2),
    Sketcher.Constraint("Horizontal", 3),
    Sketcher.Constraint("PointOnObject", 0, 2, -1),
    Sketcher.Constraint("DistanceY", 0, 2, 0, 1, 10.0),
    Sketcher.Constraint("DistanceX", 0, 2, -1, 1, 10.5),
    Sketcher.Constraint("DistanceX", 1, 1, 1, 2, 1.49957),
])
pad12 = body.newObject("PartDesign::Pad", "Pad011")
pad12.Profile = sketch14
pad12.Length = 36

# Sketch on XY plane
sketch15 = body.newObject("Sketcher::SketchObject", "Sketch014")
sketch15.AttachmentSupport = (doc.getObject("XY_Plane"), [""])
sketch15.MapMode = "FlatFace"
sketch15.AttachmentOffset = App.Placement(App.Vector(0, 0, 19), App.Rotation())
sketch15.addGeometry([
    Part.LineSegment(App.Vector(-13.5, -21.8, 0), App.Vector(-13.5, -58.7, 0)),
    Part.LineSegment(App.Vector(-13.5, -58.7, 0), App.Vector(-10.5, -58.7, 0)),
    Part.LineSegment(App.Vector(-10.5, -58.7, 0), App.Vector(-10.5, -21.8, 0)),
    Part.LineSegment(App.Vector(-10.5, -21.8, 0), App.Vector(-13.5, -21.8, 0)),
], False)
sketch15.addConstraint([
    Sketcher.Constraint("Coincident", 0, 2, 1, 1),
    Sketcher.Constraint("Coincident", 1, 2, 2, 1),
    Sketcher.Constraint("Coincident", 2, 2, 3, 1),
    Sketcher.Constraint("Coincident", 3, 2, 0, 1),
    Sketcher.Constraint("Vertical", 0),
    Sketcher.Constraint("Horizontal", 1),
    Sketcher.Constraint("Vertical", 2),
    Sketcher.Constraint("Horizontal", 3),
    Sketcher.Constraint("DistanceX", 1, 1, 1, 2, 3.0),
    Sketcher.Constraint("DistanceX", 0, 2, -1, 1, 13.5),
    Sketcher.Constraint("DistanceY", 0, 2, 0, 1, 36.93507),
    Sketcher.Constraint("DistanceY", 0, 2, -1, 1, 58.726335),
])
pocket3 = body.newObject("PartDesign::Pocket", "Pocket002")
pocket3.Profile = sketch15
pocket3.Length = 9

# Sketch on XZ plane
sketch16 = body.newObject("Sketcher::SketchObject", "Sketch015")
sketch16.AttachmentSupport = (doc.getObject("XZ_Plane"), [""])
sketch16.MapMode = "FlatFace"
sketch16.AttachmentOffset = App.Placement(App.Vector(0, 0, 58.726335), App.Rotation())
sketch16.addGeometry([
    Part.LineSegment(App.Vector(-13.5, 10, 0), App.Vector(-13.5, 19, 0)),
    Part.LineSegment(App.Vector(-13.5, 19, 0), App.Vector(-10.5, 19, 0)),
    Part.LineSegment(App.Vector(-10.5, 19, 0), App.Vector(-10.5, 10, 0)),
    Part.LineSegment(App.Vector(-10.5, 10, 0), App.Vector(-13.5, 10, 0)),
], False)
sketch16.addConstraint([
    Sketcher.Constraint("Coincident", 0, 2, 1, 1),
    Sketcher.Constraint("Coincident", 1, 2, 2, 1),
    Sketcher.Constraint("Coincident", 2, 2, 3, 1),
    Sketcher.Constraint("Coincident", 3, 2, 0, 1),
    Sketcher.Constraint("Vertical", 0),
    Sketcher.Constraint("Horizontal", 1),
    Sketcher.Constraint("Vertical", 2),
    Sketcher.Constraint("Horizontal", 3),
    Sketcher.Constraint("DistanceX", 1, 1, 1, 2, 3.0),
    Sketcher.Constraint("DistanceY", 0, 1, 0, 2, 9.0),
    Sketcher.Constraint("DistanceY", -1, 1, 0, 2, 19.0),
    Sketcher.Constraint("DistanceX", 0, 2, -1, 1, 13.5),
])
pad13 = body.newObject("PartDesign::Pad", "Pad012")
pad13.Profile = sketch16
pad13.Length = 7.5
pad13.Reversed = True

# Sketch on XZ plane
sketch17 = body.newObject("Sketcher::SketchObject", "Sketch016")
sketch17.AttachmentSupport = (doc.getObject("XZ_Plane"), [""])
sketch17.MapMode = "FlatFace"
sketch17.AttachmentOffset = App.Placement(App.Vector(0, 0, 50.242725), App.Rotation())
sketch17.addGeometry([
    Part.LineSegment(App.Vector(-16.1, 32.5, 0), App.Vector(-16.1, 34, 0)),
    Part.LineSegment(App.Vector(-16.1, 34, 0), App.Vector(-9.2, 34, 0)),
    Part.LineSegment(App.Vector(-9.2, 34, 0), App.Vector(-9.2, 32.5, 0)),
    Part.LineSegment(App.Vector(-9.2, 32.5, 0), App.Vector(-16.1, 32.5, 0)),
], False)
sketch17.addConstraint([
    Sketcher.Constraint("Coincident", 0, 2, 1, 1),
    Sketcher.Constraint("Coincident", 1, 2, 2, 1),
    Sketcher.Constraint("Coincident", 2, 2, 3, 1),
    Sketcher.Constraint("Coincident", 3, 2, 0, 1),
    Sketcher.Constraint("Vertical", 0),
    Sketcher.Constraint("Horizontal", 1),
    Sketcher.Constraint("Vertical", 2),
    Sketcher.Constraint("Horizontal", 3),
    Sketcher.Constraint("DistanceX", 1, 1, 1, 2, 6.9),
    Sketcher.Constraint("DistanceY", 0, 1, 0, 2, 1.5),
    Sketcher.Constraint("DistanceX", 0, 2, -1, 1, 16.15),
    Sketcher.Constraint("DistanceY", -1, 1, 0, 2, 33.975483),
])
pad14 = body.newObject("PartDesign::Pad", "Pad013")
pad14.Profile = sketch17
pad14.Length = 28
pad14.Reversed = True

# Sketch on XY plane
sketch18 = body.newObject("Sketcher::SketchObject", "Sketch017")
sketch18.AttachmentSupport = (doc.getObject("XY_Plane"), [""])
sketch18.MapMode = "FlatFace"
sketch18.AttachmentOffset = App.Placement(App.Vector(0, 0, 32.475483), App.Rotation())
sketch18.addGeometry([
    Part.LineSegment(App.Vector(-9.2, -31.9, 0), App.Vector(-9.2, -36.3, 0)),
    Part.LineSegment(App.Vector(-9.2, -36.3, 0), App.Vector(-16.1, -36.3, 0)),
    Part.LineSegment(App.Vector(-16.1, -36.3, 0), App.Vector(-16.1, -31.9, 0)),
    Part.LineSegment(App.Vector(-16.1, -31.9, 0), App.Vector(-9.2, -31.9, 0)),
], False)
sketch18.addConstraint([
    Sketcher.Constraint("Coincident", 0, 2, 1, 1),
    Sketcher.Constraint("Coincident", 1, 2, 2, 1),
    Sketcher.Constraint("Coincident", 2, 2, 3, 1),
    Sketcher.Constraint("Coincident", 3, 2, 0, 1),
    Sketcher.Constraint("Vertical", 0),
    Sketcher.Constraint("Horizontal", 1),
    Sketcher.Constraint("Vertical", 2),
    Sketcher.Constraint("Horizontal", 3),
    Sketcher.Constraint("DistanceX", 1, 2, 1, 1, 6.9),
    Sketcher.Constraint("DistanceX", 0, 2, -1, 1, 9.25),
    Sketcher.Constraint("DistanceY", 0, 2, 0, 1, 4.363408),
    Sketcher.Constraint("DistanceY", 2, 2, -1, 1, 31.911778),
])
pad15 = body.newObject("PartDesign::Pad", "Pad014")
pad15.Profile = sketch18
pad15.Length = 22.475483
pad15.Reversed = True

# Sketch on XY plane
sketch19 = body.newObject("Sketcher::SketchObject", "Sketch018")
sketch19.AttachmentSupport = (doc.getObject("XY_Plane"), [""])
sketch19.MapMode = "FlatFace"
sketch19.AttachmentOffset = App.Placement(App.Vector(0, 0, 10), App.Rotation())
sketch19.addGeometry([
    Part.LineSegment(App.Vector(-13.5, -31.9, 0), App.Vector(-13.5, -36.3, 0)),
    Part.LineSegment(App.Vector(-13.5, -36.3, 0), App.Vector(-16.1, -36.3, 0)),
    Part.LineSegment(App.Vector(-16.1, -36.3, 0), App.Vector(-16.1, -31.9, 0)),
    Part.LineSegment(App.Vector(-16.1, -31.9, 0), App.Vector(-13.5, -31.9, 0)),
], False)
sketch19.addConstraint([
    Sketcher.Constraint("Coincident", 0, 2, 1, 1),
    Sketcher.Constraint("Coincident", 1, 2, 2, 1),
    Sketcher.Constraint("Coincident", 2, 2, 3, 1),
    Sketcher.Constraint("Coincident", 3, 2, 0, 1),
    Sketcher.Constraint("Vertical", 0),
    Sketcher.Constraint("Horizontal", 1),
    Sketcher.Constraint("Vertical", 2),
    Sketcher.Constraint("Horizontal", 3),
    Sketcher.Constraint("DistanceX", 1, 2, 1, 1, 2.65),
    Sketcher.Constraint("DistanceX", 0, 2, -1, 1, 13.5),
    Sketcher.Constraint("DistanceY", 0, 2, 0, 1, 4.363408),
    Sketcher.Constraint("DistanceY", 2, 2, -1, 1, 31.911778),
])
pad16 = body.newObject("PartDesign::Pad", "Pad015")
pad16.Profile = sketch19
pad16.Length = 10
pad16.Reversed = True

# Sketch on XY plane
sketch20 = body.newObject("Sketcher::SketchObject", "Sketch019")
sketch20.AttachmentSupport = (doc.getObject("XY_Plane"), [""])
sketch20.MapMode = "FlatFace"
sketch20.AttachmentOffset = App.Placement(App.Vector(0, 0, 33.975483), App.Rotation())
sketch20.addGeometry([
    Part.LineSegment(App.Vector(-16.1, -24.9, 0), App.Vector(-16.1, -28.9, 0)),  # 0
    Part.LineSegment(App.Vector(-16.1, -28.9, 0), App.Vector(-14.2, -28.9, 0)),  # 1
    Part.LineSegment(App.Vector(-14.2, -28.9, 0), App.Vector(-14.2, -24.9, 0)),  # 2
    Part.LineSegment(App.Vector(-14.2, -24.9, 0), App.Vector(-16.1, -24.9, 0)),  # 3
    Part.LineSegment(App.Vector(-16.1, -32.9, 0), App.Vector(-16.1, -36.9, 0)),  # 4
    Part.LineSegment(App.Vector(-16.1, -36.9, 0), App.Vector(-14.2, -36.9, 0)),  # 5
    Part.LineSegment(App.Vector(-14.2, -36.9, 0), App.Vector(-14.2, -32.9, 0)),  # 6
    Part.LineSegment(App.Vector(-14.2, -32.9, 0), App.Vector(-16.1, -32.9, 0)),  # 7
    Part.LineSegment(App.Vector(-16.1, -40.9, 0), App.Vector(-16.1, -44.9, 0)),  # 8
    Part.LineSegment(App.Vector(-16.1, -44.9, 0), App.Vector(-14.2, -44.9, 0)),  # 9
    Part.LineSegment(App.Vector(-14.2, -44.9, 0), App.Vector(-14.2, -40.9, 0)),  # 10
    Part.LineSegment(App.Vector(-14.2, -40.9, 0), App.Vector(-16.1, -40.9, 0)),  # 11
    Part.LineSegment(App.Vector(-16.1, -48.9, 0), App.Vector(-16.1, -52.9, 0)),  # 12
    Part.LineSegment(App.Vector(-16.1, -52.9, 0), App.Vector(-14.2, -52.9, 0)),  # 13
    Part.LineSegment(App.Vector(-14.2, -52.9, 0), App.Vector(-14.2, -48.9, 0)),  # 14
    Part.LineSegment(App.Vector(-14.2, -48.9, 0), App.Vector(-16.1, -48.9, 0)),  # 15
], False)
sketch20.addConstraint([
    Sketcher.Constraint("Coincident", 0, 2, 1, 1),
    Sketcher.Constraint("Coincident", 1, 2, 2, 1),
    Sketcher.Constraint("Coincident", 2, 2, 3, 1),
    Sketcher.Constraint("Coincident", 3, 2, 0, 1),
    Sketcher.Constraint("Coincident", 4, 2, 5, 1),
    Sketcher.Constraint("Coincident", 5, 2, 6, 1),
    Sketcher.Constraint("Coincident", 6, 2, 7, 1),
    Sketcher.Constraint("Coincident", 7, 2, 4, 1),
    Sketcher.Constraint("Coincident", 8, 2, 9, 1),
    Sketcher.Constraint("Coincident", 9, 2, 10, 1),
    Sketcher.Constraint("Coincident", 10, 2, 11, 1),
    Sketcher.Constraint("Coincident", 11, 2, 8, 1),
    Sketcher.Constraint("Coincident", 12, 2, 13, 1),
    Sketcher.Constraint("Coincident", 13, 2, 14, 1),
    Sketcher.Constraint("Coincident", 14, 2, 15, 1),
    Sketcher.Constraint("Coincident", 15, 2, 12, 1),
    Sketcher.Constraint("Vertical", 0),
    Sketcher.Constraint("Horizontal", 1),
    Sketcher.Constraint("Vertical", 2),
    Sketcher.Constraint("Horizontal", 3),
    Sketcher.Constraint("Vertical", 4),
    Sketcher.Constraint("Horizontal", 5),
    Sketcher.Constraint("Vertical", 6),
    Sketcher.Constraint("Horizontal", 7),
    Sketcher.Constraint("Vertical", 8),
    Sketcher.Constraint("Horizontal", 9),
    Sketcher.Constraint("Vertical", 10),
    Sketcher.Constraint("Horizontal", 11),
    Sketcher.Constraint("Vertical", 12),
    Sketcher.Constraint("Horizontal", 13),
    Sketcher.Constraint("Vertical", 14),
    Sketcher.Constraint("Horizontal", 15),
    Sketcher.Constraint("Vertical", 3, 2, 4, 2),
    Sketcher.Constraint("Vertical", 2, 2, 5, 2),
    Sketcher.Constraint("Vertical", 7, 2, 8, 2),
    Sketcher.Constraint("Vertical", 6, 2, 9, 2),
    Sketcher.Constraint("Vertical", 11, 2, 12, 2),
    Sketcher.Constraint("Vertical", 10, 2, 13, 2),
    Sketcher.Constraint("Equal", 2, 4),
    Sketcher.Constraint("Equal", 6, 8),
    Sketcher.Constraint("Equal", 10, 12),
    Sketcher.Constraint("DistanceX", 1, 1, 1, 2, 2.0),
    Sketcher.Constraint("DistanceY", 0, 2, 0, 1, 4.0),
    Sketcher.Constraint("DistanceY", 4, 2, 0, 2, 8.0),
    Sketcher.Constraint("DistanceY", 8, 2, 4, 2, 8.0),
    Sketcher.Constraint("DistanceY", 12, 2, 8, 2, 8.0),
    Sketcher.Constraint("DistanceX", 0, 2, -1, 1, 16.15),
    Sketcher.Constraint("DistanceY", 0, 2, -1, 1, 28.925727),
])
pad17 = body.newObject("PartDesign::Pad", "Pad016")
pad17.Profile = sketch20
pad17.Length = 6.5

# Sketch on XY plane
sketch21 = body.newObject("Sketcher::SketchObject", "Sketch020")
sketch21.AttachmentSupport = (doc.getObject("XY_Plane"), [""])
sketch21.MapMode = "FlatFace"
sketch21.AttachmentOffset = App.Placement(App.Vector(0, 0, 38.3), App.Rotation())
sketch21.addGeometry([
    Part.LineSegment(App.Vector(-9.2, -22.2, 0), App.Vector(-9.2, -57, 0)),
    Part.LineSegment(App.Vector(-9.2, -57, 0), App.Vector(-7.5, -57, 0)),
    Part.LineSegment(App.Vector(-7.5, -57, 0), App.Vector(-7.5, -22.2, 0)),
    Part.LineSegment(App.Vector(-7.5, -22.2, 0), App.Vector(-9.2, -22.2, 0)),
], False)
sketch21.addConstraint([
    Sketcher.Constraint("Coincident", 0, 2, 1, 1),
    Sketcher.Constraint("Coincident", 1, 2, 2, 1),
    Sketcher.Constraint("Coincident", 2, 2, 3, 1),
    Sketcher.Constraint("Coincident", 3, 2, 0, 1),
    Sketcher.Constraint("Vertical", 0),
    Sketcher.Constraint("Horizontal", 1),
    Sketcher.Constraint("Vertical", 2),
    Sketcher.Constraint("Horizontal", 3),
    Sketcher.Constraint("DistanceX", 1, 1, 1, 2, 1.75),
    Sketcher.Constraint("DistanceY", 0, 2, 0, 1, 34.75),
    Sketcher.Constraint("DistanceX", 1, 2, -1, 1, 7.5),
    Sketcher.Constraint("DistanceY", 0, 2, -1, 1, 56.992725),
])
pad18 = body.newObject("PartDesign::Pad", "Pad017")
pad18.Profile = sketch21
pad18.Length = 2

doc.recompute()
